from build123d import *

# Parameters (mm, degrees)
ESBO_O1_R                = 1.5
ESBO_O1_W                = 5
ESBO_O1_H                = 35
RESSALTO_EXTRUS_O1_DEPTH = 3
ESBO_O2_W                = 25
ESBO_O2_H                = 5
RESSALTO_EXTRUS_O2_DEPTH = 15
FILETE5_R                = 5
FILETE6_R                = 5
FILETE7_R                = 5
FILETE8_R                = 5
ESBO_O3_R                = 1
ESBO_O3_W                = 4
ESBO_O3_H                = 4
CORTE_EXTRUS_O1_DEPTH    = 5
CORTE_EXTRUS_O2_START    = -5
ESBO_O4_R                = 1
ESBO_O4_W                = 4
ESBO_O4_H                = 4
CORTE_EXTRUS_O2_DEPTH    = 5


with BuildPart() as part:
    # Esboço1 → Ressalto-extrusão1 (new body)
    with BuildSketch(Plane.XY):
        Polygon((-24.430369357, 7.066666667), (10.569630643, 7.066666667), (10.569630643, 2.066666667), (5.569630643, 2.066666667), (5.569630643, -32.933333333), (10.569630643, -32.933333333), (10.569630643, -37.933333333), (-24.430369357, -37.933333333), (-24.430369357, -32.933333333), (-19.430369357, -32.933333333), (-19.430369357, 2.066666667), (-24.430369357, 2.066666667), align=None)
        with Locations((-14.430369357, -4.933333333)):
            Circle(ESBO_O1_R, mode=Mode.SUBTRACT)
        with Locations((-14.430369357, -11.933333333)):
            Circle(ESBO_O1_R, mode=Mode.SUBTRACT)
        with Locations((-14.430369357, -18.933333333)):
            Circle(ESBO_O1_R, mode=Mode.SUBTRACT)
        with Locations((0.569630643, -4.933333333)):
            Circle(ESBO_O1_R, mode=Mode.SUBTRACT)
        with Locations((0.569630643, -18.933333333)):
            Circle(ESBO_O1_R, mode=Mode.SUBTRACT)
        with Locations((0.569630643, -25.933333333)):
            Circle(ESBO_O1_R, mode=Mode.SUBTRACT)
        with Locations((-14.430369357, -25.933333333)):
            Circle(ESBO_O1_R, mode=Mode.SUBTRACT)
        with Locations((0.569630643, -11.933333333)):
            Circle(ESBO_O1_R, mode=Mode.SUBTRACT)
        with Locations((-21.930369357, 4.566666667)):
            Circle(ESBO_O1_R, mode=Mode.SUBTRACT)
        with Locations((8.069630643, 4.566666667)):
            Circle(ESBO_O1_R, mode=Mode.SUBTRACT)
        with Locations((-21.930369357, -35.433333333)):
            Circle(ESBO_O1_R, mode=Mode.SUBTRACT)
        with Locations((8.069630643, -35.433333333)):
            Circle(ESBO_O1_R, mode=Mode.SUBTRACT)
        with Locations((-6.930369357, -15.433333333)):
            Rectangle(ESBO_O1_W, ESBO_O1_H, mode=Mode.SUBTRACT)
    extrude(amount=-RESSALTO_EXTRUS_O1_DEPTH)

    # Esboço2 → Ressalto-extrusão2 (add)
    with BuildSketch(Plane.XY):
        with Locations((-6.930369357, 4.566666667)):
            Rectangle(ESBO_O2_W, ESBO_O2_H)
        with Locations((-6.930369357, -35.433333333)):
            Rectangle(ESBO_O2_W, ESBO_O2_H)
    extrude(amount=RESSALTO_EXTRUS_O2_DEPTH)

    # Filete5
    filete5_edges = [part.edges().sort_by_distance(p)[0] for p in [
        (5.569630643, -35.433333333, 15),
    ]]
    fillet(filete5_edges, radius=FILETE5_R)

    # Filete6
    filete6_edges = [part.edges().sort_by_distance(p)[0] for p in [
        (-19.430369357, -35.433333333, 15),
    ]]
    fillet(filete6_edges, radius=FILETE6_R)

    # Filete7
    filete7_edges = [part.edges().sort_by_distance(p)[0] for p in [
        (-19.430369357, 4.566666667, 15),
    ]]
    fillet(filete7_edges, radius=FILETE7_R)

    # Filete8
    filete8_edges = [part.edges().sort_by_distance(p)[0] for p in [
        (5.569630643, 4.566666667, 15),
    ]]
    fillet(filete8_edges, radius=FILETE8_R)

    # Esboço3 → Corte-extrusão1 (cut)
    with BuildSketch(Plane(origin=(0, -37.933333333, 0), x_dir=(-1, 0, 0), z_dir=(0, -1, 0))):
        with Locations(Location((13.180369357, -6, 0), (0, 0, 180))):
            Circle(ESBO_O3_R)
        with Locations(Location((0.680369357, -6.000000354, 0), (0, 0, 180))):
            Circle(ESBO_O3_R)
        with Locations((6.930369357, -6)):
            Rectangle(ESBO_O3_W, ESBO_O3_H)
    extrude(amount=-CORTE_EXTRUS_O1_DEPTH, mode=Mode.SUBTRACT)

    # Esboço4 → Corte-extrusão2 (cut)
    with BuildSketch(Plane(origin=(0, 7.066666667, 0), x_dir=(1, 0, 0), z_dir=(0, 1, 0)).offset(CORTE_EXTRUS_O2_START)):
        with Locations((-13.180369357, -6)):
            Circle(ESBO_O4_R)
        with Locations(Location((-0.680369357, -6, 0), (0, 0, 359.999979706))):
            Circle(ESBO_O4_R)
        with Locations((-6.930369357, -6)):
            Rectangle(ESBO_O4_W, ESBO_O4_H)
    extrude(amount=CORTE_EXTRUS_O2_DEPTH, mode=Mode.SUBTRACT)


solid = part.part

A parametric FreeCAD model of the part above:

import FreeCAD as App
import Part
import Sketcher

V = App.Vector
Q = App.Units.Quantity


def edges_at(feature, points):
    """Names of the edges that pass closest to the given points."""
    edges = feature.Shape.Edges
    near = lambda p: min(range(len(edges)), key=lambda i: edges[i].distToShape(Part.Vertex(*p))[0])
    return sorted({f"Edge{near(p) + 1}" for p in points})


def add_polygon(sketch, points):
    """Adds a closed chain of lines whose ends are joined by coincident constraints."""
    first, n = sketch.GeometryCount, len(points)
    for a, b in zip(points, points[1:] + points[:1]):
        sketch.addGeometry(Part.LineSegment(App.Vector(*a, 0), App.Vector(*b, 0)), False)
    for i in range(n):
        sketch.addConstraint(Sketcher.Constraint("Coincident", first + i, 2, first + (i + 1) % n, 1))

doc = App.newDocument("Part")
body = doc.addObject("PartDesign::Body", "Body")

sketch1 = doc.addObject("Sketcher::SketchObject", "Sketch")
body.addObject(sketch1)
sketch1.AttachmentSupport = (doc.XY_Plane, [""])
sketch1.MapMode = "FlatFace"
add_polygon(sketch1, [(10.6, 7.1), (-24.4, 7.1), (-24.4, 2.1), (-19.4, 2.1), (-19.4, -32.9), (-24.4, -32.9), (-24.4, -37.9), (10.6, -37.9), (10.6, -32.9), (5.6, -32.9), (5.6, 2.1), (10.6, 2.1)])
sketch1.addGeometry(Part.Circle(V(8.1, -35.4, 0), V(0, 0, 1), 1.5), False)
sketch1.addGeometry(Part.Circle(V(0.6, -25.9, 0), V(0, 0, 1), 1.5), False)
sketch1.addGeometry(Part.Circle(V(0.6, -18.9, 0), V(0, 0, 1), 1.5), False)
sketch1.addGeometry(Part.Circle(V(-21.9, -35.4, 0), V(0, 0, 1), 1.5), False)
sketch1.addGeometry(Part.Circle(V(-14.4, -25.9, 0), V(0, 0, 1), 1.5), False)
sketch1.addGeometry(Part.Circle(V(-14.4, -18.9, 0), V(0, 0, 1), 1.5), False)
sketch1.addGeometry(Part.Circle(V(0.6, -11.9, 0), V(0, 0, 1), 1.5), False)
sketch1.addGeometry(Part.Circle(V(0.6, -4.9, 0), V(0, 0, 1), 1.5), False)
sketch1.addGeometry(Part.Circle(V(8.1, 4.6, 0), V(0, 0, 1), 1.5), False)
add_polygon(sketch1, [(-9.4, -32.9), (-9.4, 2.1), (-4.4, 2.1), (-4.4, -32.9)])
sketch1.addGeometry(Part.Circle(V(-14.4, -11.9, 0), V(0, 0, 1), 1.5), False)
sketch1.addGeometry(Part.Circle(V(-14.4, -4.9, 0), V(0, 0, 1), 1.5), False)
sketch1.addGeometry(Part.Circle(V(-21.9, 4.6, 0), V(0, 0, 1), 1.5), False)
sketch1.addConstraint([
    Sketcher.Constraint("Horizontal", 0),
    Sketcher.Constraint("Vertical", 1),
    Sketcher.Constraint("Horizontal", 2),
    Sketcher.Constraint("Vertical", 3),
    Sketcher.Constraint("Horizontal", 4),
    Sketcher.Constraint("Vertical", 5),
    Sketcher.Constraint("Horizontal", 6),
    Sketcher.Constraint("Vertical", 7),
    Sketcher.Constraint("Horizontal", 8),
    Sketcher.Constraint("Vertical", 9),
    Sketcher.Constraint("Horizontal", 10),
    Sketcher.Constraint("Vertical", 11),
    Sketcher.Constraint("Vertical", 21),
    Sketcher.Constraint("Horizontal", 22),
    Sketcher.Constraint("Vertical", 23),
    Sketcher.Constraint("Horizontal", 24),
    Sketcher.Constraint("Equal", 12, 13),
    Sketcher.Constraint("Equal", 13, 14),
    Sketcher.Constraint("Equal", 14, 15),
    Sketcher.Constraint("Equal", 15, 16),
    Sketcher.Constraint("Equal", 16, 17),
    Sketcher.Constraint("Equal", 17, 18),
    Sketcher.Constraint("Equal", 18, 19),
    Sketcher.Constraint("Equal", 19, 20),
    Sketcher.Constraint("Equal", 20, 25),
    Sketcher.Constraint("Equal", 25, 26),
    Sketcher.Constraint("Equal", 26, 27),
    Sketcher.Constraint("Horizontal", 12, 3, 15, 3),
    Sketcher.Constraint("Horizontal", 13, 3, 16, 3),
    Sketcher.Constraint("Horizontal", 14, 3, 17, 3),
    Sketcher.Constraint("Horizontal", 18, 3, 25, 3),
    Sketcher.Constraint("Horizontal", 19, 3, 26, 3),
    Sketcher.Constraint("Horizontal", 20, 3, 27, 3),
    Sketcher.Constraint("Horizontal", 4, 2, 7, 2),
    Sketcher.Constraint("Horizontal", 2, 2, 9, 2),
    Sketcher.Constraint("Horizontal", 10, 2, 21, 2),
    Sketcher.Constraint("Horizontal", 8, 2, 23, 2),
    Sketcher.Constraint("Vertical", 13, 3, 14, 3),
    Sketcher.Constraint("Vertical", 16, 3, 17, 3),
    Sketcher.Constraint("Vertical", 14, 3, 18, 3),
    Sketcher.Constraint("Vertical", 18, 3, 19, 3),
    Sketcher.Constraint("Vertical", 12, 3, 20, 3),
    Sketcher.Constraint("Vertical", 17, 3, 25, 3),
    Sketcher.Constraint("Vertical", 25, 3, 26, 3),
    Sketcher.Constraint("Vertical", 15, 3, 27, 3),
    Sketcher.Constraint("Vertical", 1, 2, 4, 2),
    Sketcher.Constraint("Vertical", 7, 2, 10, 2),
    Sketcher.Constraint("Equal", 4, 8),
    Sketcher.Constraint("Equal", 10, 22),
    Sketcher.Constraint("Equal", 24, 1),
    Sketcher.Constraint("Equal", 6, 3),
    Sketcher.Constraint("Equal", 1, 5),
    Sketcher.Constraint("Diameter", 12, Q("3 mm")),
    Sketcher.Constraint("DistanceX", 0, 2, 0, 1, Q("35 mm")),
    Sketcher.Constraint("DistanceX", 2, 1, 2, 2, Q("5 mm")),
    Sketcher.Constraint("DistanceY", 13, 3, 14, 3, Q("7 mm")),
    Sketcher.Constraint("DistanceX", 15, 3, 12, 3, Q("30 mm")),
    Sketcher.Constraint("DistanceX", 16, 3, 13, 3, Q("15 mm")),
    Sketcher.Constraint("DistanceY", 14, 3, 18, 3, Q("7 mm")),
    Sketcher.Constraint("DistanceY", 18, 3, 19, 3, Q("7 mm")),
    Sketcher.Constraint("DistanceX", 0, 2, 26, 3, Q("10 mm")),
    Sketcher.Constraint("DistanceY", 26, 3, 0, 2, Q("12 mm")),
    Sketcher.Constraint("DistanceX", 26, 3, 21, 2, Q("5 mm")),
    Sketcher.Constraint("DistanceX", 13, 3, 12, 3, Q("7.5 mm")),
    Sketcher.Constraint("DistanceY", 12, 3, 13, 3, Q("9.5 mm")),
    Sketcher.Constraint("DistanceY", 19, 3, 20, 3, Q("9.5 mm")),
    Sketcher.Constraint("DistanceX", -1, 1, 12, 3, Q("8.069631 mm")),
    Sketcher.Constraint("DistanceY", 12, 3, -1, 1, Q("35.433333 mm")),
])
pad1 = doc.addObject("PartDesign::Pad", "Pad")
body.addObject(pad1)
pad1.Profile = sketch1
pad1.Length = 3
pad1.Reversed = True

sketch2 = doc.addObject("Sketcher::SketchObject", "Sketch001")
body.addObject(sketch2)
sketch2.AttachmentSupport = (doc.XY_Plane, [""])
sketch2.MapMode = "FlatFace"
add_polygon(sketch2, [(-19, 7), (-19, 2), (6, 2), (6, 7)])
add_polygon(sketch2, [(-19, -33), (-19, -38), (6, -38), (6, -33)])
sketch2.addConstraint([
    Sketcher.Constraint("Vertical", 0),
    Sketcher.Constraint("Horizontal", 1),
    Sketcher.Constraint("Vertical", 2),
    Sketcher.Constraint("Horizontal", 3),
    Sketcher.Constraint("Vertical", 4),
    Sketcher.Constraint("Horizontal", 5),
    Sketcher.Constraint("Vertical", 6),
    Sketcher.Constraint("Horizontal", 7),
    Sketcher.Constraint("Vertical", 3, 2, 4, 2),
    Sketcher.Constraint("Vertical", 2, 2, 5, 2),
    Sketcher.Constraint("Equal", 2, 4),
    Sketcher.Constraint("DistanceX", 1, 1, 1, 2, Q("25 mm")),
    Sketcher.Constraint("DistanceY", 0, 2, 0, 1, Q("5 mm")),
    Sketcher.Constraint("DistanceY", 4, 2, 0, 2, Q("40 mm")),
    Sketcher.Constraint("DistanceX", 0, 2, -1, 1, Q("19.430369 mm")),
    Sketcher.Constraint("DistanceY", -1, 1, 0, 2, Q("2.066667 mm")),
])
pad2 = doc.addObject("PartDesign::Pad", "Pad001")
body.addObject(pad2)
pad2.Profile = sketch2
pad2.Length = 15
doc.recompute()

fillet = doc.addObject("PartDesign::Fillet", "Fillet")
body.addObject(fillet)
fillet.Base = (pad2, edges_at(pad2, [(5.57, -35.433, 15)]))
fillet.Radius = 5
doc.recompute()

fillet2 = doc.addObject("PartDesign::Fillet", "Fillet001")
body.addObject(fillet2)
fillet2.Base = (fillet, edges_at(fillet, [(-19.43, -35.433, 15)]))
fillet2.Radius = 5
doc.recompute()

fillet3 = doc.addObject("PartDesign::Fillet", "Fillet002")
body.addObject(fillet3)
fillet3.Base = (fillet2, edges_at(fillet2, [(-19.43, 4.567, 15)]))
fillet3.Radius = 5
doc.recompute()

fillet4 = doc.addObject("PartDesign::Fillet", "Fillet003")
body.addObject(fillet4)
fillet4.Base = (fillet3, edges_at(fillet3, [(5.57, 4.567, 15)]))
fillet4.Radius = 5

sketch3 = doc.addObject("Sketcher::SketchObject", "Sketch002")
body.addObject(sketch3)
sketch3.AttachmentSupport = (doc.XZ_Plane, [""])
sketch3.MapMode = "FlatFace"
sketch3.AttachmentOffset = App.Placement(V(0, 0, 37.933333), App.Rotation())
sketch3.addGeometry(Part.Circle(V(-13.2, 6, 0), V(0, 0, 1), 1), False)
sketch3.addGeometry(Part.Circle(V(-0.7, 6, 0), V(0, 0, 1), 1), False)
add_polygon(sketch3, [(-4.9, 4), (-4.9, 8), (-8.9, 8), (-8.9, 4)])
sketch3.addConstraint([
    Sketcher.Constraint("Vertical", 2),
    Sketcher.Constraint("Horizontal", 3),
    Sketcher.Constraint("Vertical", 4),
    Sketcher.Constraint("Horizontal", 5),
    Sketcher.Constraint("Equal", 0, 1),
    Sketcher.Constraint("Horizontal", 0, 3, 1, 3),
    Sketcher.Constraint("Equal", 5, 2),
    Sketcher.Constraint("Diameter", 0, Q("2 mm")),
    Sketcher.Constraint("DistanceX", 3, 2, 3, 1, Q("4 mm")),
    Sketcher.Constraint("DistanceY", -1, 1, 0, 3, Q("6 mm")),
    Sketcher.Constraint("DistanceY", -1, 1, 2, 2, Q("8 mm")),
    Sketcher.Constraint("DistanceX", 0, 3, 1, 3, Q("12.5 mm")),
    Sketcher.Constraint("DistanceX", 2, 2, 1, 3, Q("4.25 mm")),
    Sketcher.Constraint("DistanceX", 0, 3, -1, 1, Q("13.180369 mm")),
])
pocket1 = doc.addObject("PartDesign::Pocket", "Pocket")
body.addObject(pocket1)
pocket1.Profile = sketch3
pocket1.Length = 5

sketch4 = doc.addObject("Sketcher::SketchObject", "Sketch003")
body.addObject(sketch4)
sketch4.AttachmentSupport = (doc.XZ_Plane, [""])
sketch4.MapMode = "FlatFace"
sketch4.AttachmentOffset = App.Placement(V(0, 0, -2.066667), App.Rotation())
sketch4.addGeometry(Part.Circle(V(-13.2, 6, 0), V(0, 0, 1), 1), False)
sketch4.addGeometry(Part.Circle(V(-0.7, 6, 0), V(0, 0, 1), 1), False)
add_polygon(sketch4, [(-8.9, 4), (-8.9, 8), (-4.9, 8), (-4.9, 4)])
sketch4.addConstraint([
    Sketcher.Constraint("Vertical", 2),
    Sketcher.Constraint("Horizontal", 3),
    Sketcher.Constraint("Vertical", 4),
    Sketcher.Constraint("Horizontal", 5),
    Sketcher.Constraint("Equal", 0, 1),
    Sketcher.Constraint("Horizontal", 0, 3, 1, 3),
    Sketcher.Constraint("Equal", 5, 2),
    Sketcher.Constraint("Diameter", 0, Q("2 mm")),
    Sketcher.Constraint("DistanceX", 3, 1, 3, 2, Q("4 mm")),
    Sketcher.Constraint("DistanceY", -1, 1, 0, 3, Q("6 mm")),
    Sketcher.Constraint("DistanceY", -1, 1, 2, 2, Q("8 mm")),
    Sketcher.Constraint("DistanceX", 0, 3, 1, 3, Q("12.5 mm")),
    Sketcher.Constraint("DistanceX", 0, 3, 2, 2, Q("4.25 mm")),
    Sketcher.Constraint("DistanceX", 0, 3, -1, 1, Q("13.180369 mm")),
])
pocket2 = doc.addObject("PartDesign::Pocket", "Pocket001")
body.addObject(pocket2)
pocket2.Profile = sketch4
pocket2.Length = 5

doc.recompute()
